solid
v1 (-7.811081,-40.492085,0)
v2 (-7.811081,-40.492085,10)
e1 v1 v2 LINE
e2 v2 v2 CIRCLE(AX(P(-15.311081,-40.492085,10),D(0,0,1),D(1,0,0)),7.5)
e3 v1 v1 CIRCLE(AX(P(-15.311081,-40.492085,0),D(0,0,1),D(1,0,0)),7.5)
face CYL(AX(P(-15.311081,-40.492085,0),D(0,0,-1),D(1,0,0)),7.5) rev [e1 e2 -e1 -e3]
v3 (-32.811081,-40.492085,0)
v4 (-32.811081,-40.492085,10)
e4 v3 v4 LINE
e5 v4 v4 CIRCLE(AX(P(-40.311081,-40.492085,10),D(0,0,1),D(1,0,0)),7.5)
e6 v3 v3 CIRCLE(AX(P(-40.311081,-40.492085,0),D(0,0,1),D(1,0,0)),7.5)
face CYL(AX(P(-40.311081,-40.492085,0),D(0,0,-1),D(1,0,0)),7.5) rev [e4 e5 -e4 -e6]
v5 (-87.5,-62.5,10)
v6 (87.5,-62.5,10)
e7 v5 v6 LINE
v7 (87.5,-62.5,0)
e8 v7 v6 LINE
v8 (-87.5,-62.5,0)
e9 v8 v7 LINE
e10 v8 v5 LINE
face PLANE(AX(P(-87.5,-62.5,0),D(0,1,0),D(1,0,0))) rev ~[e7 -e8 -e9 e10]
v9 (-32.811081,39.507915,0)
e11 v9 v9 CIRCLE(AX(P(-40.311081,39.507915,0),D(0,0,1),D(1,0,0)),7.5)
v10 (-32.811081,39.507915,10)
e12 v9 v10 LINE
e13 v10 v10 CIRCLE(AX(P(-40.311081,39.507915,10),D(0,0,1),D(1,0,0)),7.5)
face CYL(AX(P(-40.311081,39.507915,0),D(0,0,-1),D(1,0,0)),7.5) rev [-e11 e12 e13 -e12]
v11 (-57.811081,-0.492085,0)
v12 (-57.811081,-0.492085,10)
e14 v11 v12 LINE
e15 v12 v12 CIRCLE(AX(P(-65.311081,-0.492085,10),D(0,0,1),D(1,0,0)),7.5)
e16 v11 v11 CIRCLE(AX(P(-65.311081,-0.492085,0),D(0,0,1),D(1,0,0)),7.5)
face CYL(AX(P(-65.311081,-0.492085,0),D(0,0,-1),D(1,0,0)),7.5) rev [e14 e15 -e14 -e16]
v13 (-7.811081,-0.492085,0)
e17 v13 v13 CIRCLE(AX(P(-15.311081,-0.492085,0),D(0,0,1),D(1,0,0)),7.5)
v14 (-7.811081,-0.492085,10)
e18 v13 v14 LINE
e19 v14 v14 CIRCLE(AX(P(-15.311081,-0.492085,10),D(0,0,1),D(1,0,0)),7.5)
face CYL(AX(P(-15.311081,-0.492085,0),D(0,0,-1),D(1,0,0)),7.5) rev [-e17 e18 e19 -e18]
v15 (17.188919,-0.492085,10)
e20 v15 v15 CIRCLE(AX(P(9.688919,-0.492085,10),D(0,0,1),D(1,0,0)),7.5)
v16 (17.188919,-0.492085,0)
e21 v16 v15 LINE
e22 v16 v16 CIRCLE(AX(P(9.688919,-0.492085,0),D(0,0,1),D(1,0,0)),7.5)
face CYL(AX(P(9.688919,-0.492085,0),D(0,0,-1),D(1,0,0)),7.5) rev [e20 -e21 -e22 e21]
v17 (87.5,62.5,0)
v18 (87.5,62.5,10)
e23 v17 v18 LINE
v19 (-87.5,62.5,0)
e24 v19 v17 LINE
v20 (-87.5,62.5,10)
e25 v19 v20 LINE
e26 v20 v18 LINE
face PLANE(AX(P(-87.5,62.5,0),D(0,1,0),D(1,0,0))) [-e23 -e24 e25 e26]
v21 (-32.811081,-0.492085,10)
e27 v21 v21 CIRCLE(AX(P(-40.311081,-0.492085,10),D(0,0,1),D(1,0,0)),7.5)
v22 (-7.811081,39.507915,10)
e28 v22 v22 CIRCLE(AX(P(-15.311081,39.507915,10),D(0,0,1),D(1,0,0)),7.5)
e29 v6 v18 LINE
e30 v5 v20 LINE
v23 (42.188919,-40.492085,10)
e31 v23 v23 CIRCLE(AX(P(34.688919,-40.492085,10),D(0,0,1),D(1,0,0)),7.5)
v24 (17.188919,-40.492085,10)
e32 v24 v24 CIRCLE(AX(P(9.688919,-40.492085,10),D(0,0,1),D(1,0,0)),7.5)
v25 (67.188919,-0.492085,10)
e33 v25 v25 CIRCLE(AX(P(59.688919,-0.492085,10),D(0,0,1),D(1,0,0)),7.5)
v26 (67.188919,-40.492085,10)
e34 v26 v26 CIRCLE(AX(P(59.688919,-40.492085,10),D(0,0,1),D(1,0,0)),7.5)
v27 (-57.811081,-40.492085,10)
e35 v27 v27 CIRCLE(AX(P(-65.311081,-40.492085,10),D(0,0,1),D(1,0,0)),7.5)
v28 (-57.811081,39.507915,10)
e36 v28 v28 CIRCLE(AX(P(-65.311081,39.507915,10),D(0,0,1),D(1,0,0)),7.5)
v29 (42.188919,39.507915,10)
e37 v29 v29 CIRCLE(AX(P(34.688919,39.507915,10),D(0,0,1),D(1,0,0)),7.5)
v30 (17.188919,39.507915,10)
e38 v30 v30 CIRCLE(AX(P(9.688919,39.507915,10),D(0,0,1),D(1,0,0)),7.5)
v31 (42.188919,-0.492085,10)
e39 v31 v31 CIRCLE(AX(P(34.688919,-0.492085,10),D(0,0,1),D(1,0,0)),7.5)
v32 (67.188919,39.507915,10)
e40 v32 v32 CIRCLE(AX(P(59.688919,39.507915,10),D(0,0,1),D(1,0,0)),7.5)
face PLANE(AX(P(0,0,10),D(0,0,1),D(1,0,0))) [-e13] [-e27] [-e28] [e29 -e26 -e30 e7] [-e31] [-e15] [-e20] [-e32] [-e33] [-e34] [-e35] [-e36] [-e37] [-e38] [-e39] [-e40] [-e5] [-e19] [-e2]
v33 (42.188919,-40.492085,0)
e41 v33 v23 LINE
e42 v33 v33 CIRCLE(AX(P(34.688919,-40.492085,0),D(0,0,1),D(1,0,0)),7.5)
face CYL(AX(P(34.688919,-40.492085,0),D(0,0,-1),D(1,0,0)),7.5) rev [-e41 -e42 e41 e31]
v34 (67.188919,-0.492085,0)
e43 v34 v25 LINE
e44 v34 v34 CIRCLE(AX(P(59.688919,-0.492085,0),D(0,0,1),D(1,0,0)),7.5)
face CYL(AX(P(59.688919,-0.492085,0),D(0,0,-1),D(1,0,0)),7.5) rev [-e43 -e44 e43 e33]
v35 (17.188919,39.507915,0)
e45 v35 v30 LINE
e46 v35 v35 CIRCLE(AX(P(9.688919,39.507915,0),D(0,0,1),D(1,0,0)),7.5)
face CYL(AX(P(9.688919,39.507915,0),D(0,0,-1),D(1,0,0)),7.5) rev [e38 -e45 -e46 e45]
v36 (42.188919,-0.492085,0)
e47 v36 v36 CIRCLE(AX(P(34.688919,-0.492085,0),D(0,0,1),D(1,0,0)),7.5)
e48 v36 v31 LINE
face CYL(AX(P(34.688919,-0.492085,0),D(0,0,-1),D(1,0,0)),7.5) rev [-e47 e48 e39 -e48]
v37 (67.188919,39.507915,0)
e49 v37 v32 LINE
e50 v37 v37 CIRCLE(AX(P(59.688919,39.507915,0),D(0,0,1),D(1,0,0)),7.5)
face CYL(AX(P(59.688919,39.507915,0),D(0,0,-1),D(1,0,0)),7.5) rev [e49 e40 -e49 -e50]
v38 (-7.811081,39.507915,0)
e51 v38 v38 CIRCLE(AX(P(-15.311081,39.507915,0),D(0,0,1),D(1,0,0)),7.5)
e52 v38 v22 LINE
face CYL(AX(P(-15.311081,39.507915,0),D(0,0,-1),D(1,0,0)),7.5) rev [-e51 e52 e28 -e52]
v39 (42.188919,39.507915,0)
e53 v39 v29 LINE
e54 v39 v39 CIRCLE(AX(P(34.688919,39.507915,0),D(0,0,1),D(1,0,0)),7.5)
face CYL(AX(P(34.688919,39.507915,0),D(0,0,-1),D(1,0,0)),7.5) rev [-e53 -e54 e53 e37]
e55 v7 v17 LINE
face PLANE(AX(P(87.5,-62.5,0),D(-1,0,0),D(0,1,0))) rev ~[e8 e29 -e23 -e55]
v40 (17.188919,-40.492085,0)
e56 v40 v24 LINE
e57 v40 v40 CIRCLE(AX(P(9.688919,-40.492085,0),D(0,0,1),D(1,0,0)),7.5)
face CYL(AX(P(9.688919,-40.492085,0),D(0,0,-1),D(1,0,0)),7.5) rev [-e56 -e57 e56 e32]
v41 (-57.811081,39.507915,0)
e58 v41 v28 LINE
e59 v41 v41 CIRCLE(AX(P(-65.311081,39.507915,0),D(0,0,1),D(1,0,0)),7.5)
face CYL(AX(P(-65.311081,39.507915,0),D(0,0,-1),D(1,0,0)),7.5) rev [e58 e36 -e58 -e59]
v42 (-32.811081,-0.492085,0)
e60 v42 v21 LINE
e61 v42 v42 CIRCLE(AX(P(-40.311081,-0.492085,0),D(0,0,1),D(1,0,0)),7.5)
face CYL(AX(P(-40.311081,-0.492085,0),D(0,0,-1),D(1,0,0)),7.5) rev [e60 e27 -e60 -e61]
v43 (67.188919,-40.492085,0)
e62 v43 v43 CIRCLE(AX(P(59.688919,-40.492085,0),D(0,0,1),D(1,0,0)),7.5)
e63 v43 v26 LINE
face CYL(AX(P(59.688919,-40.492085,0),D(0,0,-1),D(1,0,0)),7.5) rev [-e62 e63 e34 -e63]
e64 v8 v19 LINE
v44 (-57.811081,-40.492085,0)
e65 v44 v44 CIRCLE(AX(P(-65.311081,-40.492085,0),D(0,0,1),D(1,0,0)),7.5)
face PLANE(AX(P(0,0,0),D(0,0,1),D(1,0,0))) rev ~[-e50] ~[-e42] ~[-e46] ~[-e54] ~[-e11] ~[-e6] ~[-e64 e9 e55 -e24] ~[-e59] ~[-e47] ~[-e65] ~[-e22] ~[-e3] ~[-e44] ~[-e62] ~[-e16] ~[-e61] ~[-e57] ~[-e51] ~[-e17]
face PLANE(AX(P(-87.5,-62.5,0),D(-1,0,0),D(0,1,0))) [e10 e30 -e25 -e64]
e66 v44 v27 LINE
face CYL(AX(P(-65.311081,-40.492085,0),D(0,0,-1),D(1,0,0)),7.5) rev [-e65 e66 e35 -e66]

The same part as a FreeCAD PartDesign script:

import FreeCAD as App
import Part
import Sketcher

doc = App.newDocument("Part")
params = doc.addObject("Spreadsheet::Sheet", "Params")
for row, (alias, value) in enumerate([
    ("sketch1_diameter", "15 mm"),
    ("sketch1_width", "175 mm"),
    ("sketch1_height", "125 mm"),
    ("pad1_length", "10 mm"),
], start=1):
    params.set(f"A{row}", alias)
    params.set(f"B{row}", "=" + value)
    params.setAlias(f"B{row}", alias)

body = doc.addObject("PartDesign::Body", "Body")

# Sketch on XY plane
sketch1 = doc.addObject("Sketcher::SketchObject", "Sketch")
body.addObject(sketch1)
sketch1.AttachmentSupport = (doc.XY_Plane, [""])
sketch1.MapMode = "FlatFace"
sketch1.addGeometry([
    Part.LineSegment(App.Vector(-88, 62, 0), App.Vector(-88, -62, 0)),  # 0
    Part.LineSegment(App.Vector(-88, -62, 0), App.Vector(88, -62, 0)),  # 1
    Part.LineSegment(App.Vector(88, -62, 0), App.Vector(88, 62, 0)),  # 2
    Part.LineSegment(App.Vector(88, 62, 0), App.Vector(-88, 62, 0)),  # 3
    Part.Circle(App.Vector(-65, -40, 0), App.Vector(0, 0, 1), 8),  # 4
    Part.Circle(App.Vector(-40, -40, 0), App.Vector(0, 0, 1), 8),  # 5
    Part.Circle(App.Vector(-15, -40, 0), App.Vector(0, 0, 1), 8),  # 6
    Part.Circle(App.Vector(10, -40, 0), App.Vector(0, 0, 1), 8),  # 7
    Part.Circle(App.Vector(35, -40, 0), App.Vector(0, 0, 1), 8),  # 8
    Part.Circle(App.Vector(60, -40, 0), App.Vector(0, 0, 1), 8),  # 9
    Part.Circle(App.Vector(-65, 0, 0), App.Vector(0, 0, 1), 8),  # 10
    Part.Circle(App.Vector(-40, 0, 0), App.Vector(0, 0, 1), 8),  # 11
    Part.Circle(App.Vector(-15, 0, 0), App.Vector(0, 0, 1), 8),  # 12
    Part.Circle(App.Vector(-65, 40, 0), App.Vector(0, 0, 1), 8),  # 13
    Part.Circle(App.Vector(-40, 40, 0), App.Vector(0, 0, 1), 8),  # 14
    Part.Circle(App.Vector(-15, 40, 0), App.Vector(0, 0, 1), 8),  # 15
    Part.Circle(App.Vector(10, 0, 0), App.Vector(0, 0, 1), 8),  # 16
    Part.Circle(App.Vector(35, 0, 0), App.Vector(0, 0, 1), 8),  # 17
    Part.Circle(App.Vector(60, 0, 0), App.Vector(0, 0, 1), 8),  # 18
    Part.Circle(App.Vector(10, 40, 0), App.Vector(0, 0, 1), 8),  # 19
    Part.Circle(App.Vector(35, 40, 0), App.Vector(0, 0, 1), 8),  # 20
    Part.Circle(App.Vector(60, 40, 0), App.Vector(0, 0, 1), 8),  # 21
], False)
sketch1.addConstraint([
    Sketcher.Constraint("Coincident", 0, 2, 1, 1),
    Sketcher.Constraint("Coincident", 1, 2, 2, 1),
    Sketcher.Constraint("Coincident", 2, 2, 3, 1),
    Sketcher.Constraint("Coincident", 3, 2, 0, 1),
    Sketcher.Constraint("Vertical", 0),
    Sketcher.Constraint("Horizontal", 1),
    Sketcher.Constraint("Vertical", 2),
    Sketcher.Constraint("Horizontal", 3),
    Sketcher.Constraint("Equal", 4, 5),
    Sketcher.Constraint("Equal", 5, 6),
    Sketcher.Constraint("Equal", 6, 7),
    Sketcher.Constraint("Equal", 7, 8),
    Sketcher.Constraint("Equal", 8, 9),
    Sketcher.Constraint("Equal", 9, 10),
    Sketcher.Constraint("Equal", 10, 11),
    Sketcher.Constraint("Equal", 11, 12),
    Sketcher.Constraint("Equal", 12, 13),
    Sketcher.Constraint("Equal", 13, 14),
    Sketcher.Constraint("Equal", 14, 15),
    Sketcher.Constraint("Equal", 15, 16),
    Sketcher.Constraint("Equal", 16, 17),
    Sketcher.Constraint("Equal", 17, 18),
    Sketcher.Constraint("Equal", 18, 19),
    Sketcher.Constraint("Equal", 19, 20),
    Sketcher.Constraint("Equal", 20, 21),
    Sketcher.Constraint("Symmetric", 0, 2, 2, 2, -1, 1),
    Sketcher.Constraint("Horizontal", 4, 3, 5, 3),
    Sketcher.Constraint("Horizontal", 5, 3, 6, 3),
    Sketcher.Constraint("Horizontal", 6, 3, 7, 3),
    Sketcher.Constraint("Horizontal", 7, 3, 8, 3),
    Sketcher.Constraint("Horizontal", 8, 3, 9, 3),
    Sketcher.Constraint("Horizontal", 10, 3, 11, 3),
    Sketcher.Constraint("Horizontal", 11, 3, 12, 3),
    Sketcher.Constraint("Horizontal", 13, 3, 14, 3),
    Sketcher.Constraint("Horizontal", 14, 3, 15, 3),
    Sketcher.Constraint("Horizontal", 12, 3, 16, 3),
    Sketcher.Constraint("Horizontal", 16, 3, 17, 3),
    Sketcher.Constraint("Horizontal", 17, 3, 18, 3),
    Sketcher.Constraint("Horizontal", 15, 3, 19, 3),
    Sketcher.Constraint("Horizontal", 19, 3, 20, 3),
    Sketcher.Constraint("Horizontal", 20, 3, 21, 3),
    Sketcher.Constraint("Vertical", 4, 3, 10, 3),
    Sketcher.Constraint("Vertical", 5, 3, 11, 3),
    Sketcher.Constraint("Vertical", 6, 3, 12, 3),
    Sketcher.Constraint("Vertical", 10, 3, 13, 3),
    Sketcher.Constraint("Vertical", 11, 3, 14, 3),
    Sketcher.Constraint("Vertical", 12, 3, 15, 3),
    Sketcher.Constraint("Vertical", 7, 3, 16, 3),
    Sketcher.Constraint("Vertical", 8, 3, 17, 3),
    Sketcher.Constraint("Vertical", 9, 3, 18, 3),
    Sketcher.Constraint("Vertical", 16, 3, 19, 3),
    Sketcher.Constraint("Vertical", 17, 3, 20, 3),
    Sketcher.Constraint("Vertical", 18, 3, 21, 3),
    Sketcher.Constraint("Diameter", 4, 15.0),
    Sketcher.Constraint("DistanceX", 1, 1, 1, 2, 175.0),
    Sketcher.Constraint("DistanceY", 0, 2, 0, 1, 125.0),
    Sketcher.Constraint("DistanceX", 4, 3, 5, 3, 25.0),
    Sketcher.Constraint("DistanceX", 5, 3, 6, 3, 25.0),
    Sketcher.Constraint("DistanceX", 6, 3, 7, 3, 25.0),
    Sketcher.Constraint("DistanceX", 7, 3, 8, 3, 25.0),
    Sketcher.Constraint("DistanceX", 8, 3, 9, 3, 25.0),
    Sketcher.Constraint("DistanceY", 4, 3, 10, 3, 40.0),
    Sketcher.Constraint("DistanceY", 10, 3, 13, 3, 40.0),
    Sketcher.Constraint("DistanceX", 4, 3, -1, 1, 65.311081),
    Sketcher.Constraint("DistanceY", 4, 3, -1, 1, 40.492085),
])
sketch1.setExpression("Constraints[53]", "Params.sketch1_diameter")
sketch1.setExpression("Constraints[54]", "Params.sketch1_width")
sketch1.setExpression("Constraints[55]", "Params.sketch1_height")
pad1 = doc.addObject("PartDesign::Pad", "Pad")
body.addObject(pad1)
pad1.Profile = sketch1
pad1.setExpression("Length", "Params.pad1_length")

doc.recompute()
